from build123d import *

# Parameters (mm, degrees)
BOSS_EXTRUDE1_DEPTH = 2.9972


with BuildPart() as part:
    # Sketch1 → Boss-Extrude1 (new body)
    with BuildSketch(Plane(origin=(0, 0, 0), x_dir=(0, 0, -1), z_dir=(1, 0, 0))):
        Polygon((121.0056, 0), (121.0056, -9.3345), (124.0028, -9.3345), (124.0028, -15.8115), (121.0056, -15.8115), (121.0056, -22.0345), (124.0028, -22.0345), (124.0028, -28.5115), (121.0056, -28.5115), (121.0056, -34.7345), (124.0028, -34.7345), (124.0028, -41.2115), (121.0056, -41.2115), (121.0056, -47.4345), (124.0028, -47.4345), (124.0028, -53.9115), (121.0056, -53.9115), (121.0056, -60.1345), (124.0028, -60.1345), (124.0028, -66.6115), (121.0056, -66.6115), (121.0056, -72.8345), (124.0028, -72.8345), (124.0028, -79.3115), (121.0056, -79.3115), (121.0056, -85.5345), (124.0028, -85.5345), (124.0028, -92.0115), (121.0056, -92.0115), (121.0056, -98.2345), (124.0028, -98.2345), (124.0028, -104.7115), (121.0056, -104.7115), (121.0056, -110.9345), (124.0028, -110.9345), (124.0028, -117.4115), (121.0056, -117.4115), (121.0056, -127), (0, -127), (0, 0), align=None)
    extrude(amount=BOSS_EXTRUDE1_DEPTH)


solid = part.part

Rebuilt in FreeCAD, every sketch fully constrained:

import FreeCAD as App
import Part
import Sketcher

V = App.Vector
Q = App.Units.Quantity

doc = App.newDocument("Part")
body = doc.addObject("PartDesign::Body", "Body")

# Sketch on YZ plane
sketch1 = doc.addObject("Sketcher::SketchObject", "Sketch")
body.addObject(sketch1)
sketch1.AttachmentSupport = (doc.YZ_Plane, [""])
sketch1.MapMode = "FlatFace"
sketch1.addGeometry([
    Part.LineSegment(V(-9.3, -121, 0), V(0, -121, 0)),  # 0
    Part.LineSegment(V(0, -121, 0), V(0, 0, 0)),  # 1
    Part.LineSegment(V(0, 0, 0), V(-127, 0, 0)),  # 2
    Part.LineSegment(V(-127, 0, 0), V(-127, -121, 0)),  # 3
    Part.LineSegment(V(-127, -121, 0), V(-117.4, -121, 0)),  # 4
    Part.LineSegment(V(-117.4, -121, 0), V(-117.4, -124, 0)),  # 5
    Part.LineSegment(V(-117.4, -124, 0), V(-110.9, -124, 0)),  # 6
    Part.LineSegment(V(-110.9, -124, 0), V(-110.9, -121, 0)),  # 7
    Part.LineSegment(V(-110.9, -121, 0), V(-104.7, -121, 0)),  # 8
    Part.LineSegment(V(-104.7, -121, 0), V(-104.7, -124, 0)),  # 9
    Part.LineSegment(V(-104.7, -124, 0), V(-98.2, -124, 0)),  # 10
    Part.LineSegment(V(-98.2, -124, 0), V(-98.2, -121, 0)),  # 11
    Part.LineSegment(V(-98.2, -121, 0), V(-92, -121, 0)),  # 12
    Part.LineSegment(V(-92, -121, 0), V(-92, -124, 0)),  # 13
    Part.LineSegment(V(-92, -124, 0), V(-85.5, -124, 0)),  # 14
    Part.LineSegment(V(-85.5, -124, 0), V(-85.5, -121, 0)),  # 15
    Part.LineSegment(V(-85.5, -121, 0), V(-79.3, -121, 0)),  # 16
    Part.LineSegment(V(-79.3, -121, 0), V(-79.3, -124, 0)),  # 17
    Part.LineSegment(V(-79.3, -124, 0), V(-72.8, -124, 0)),  # 18
    Part.LineSegment(V(-72.8, -124, 0), V(-72.8, -121, 0)),  # 19
    Part.LineSegment(V(-72.8, -121, 0), V(-66.6, -121, 0)),  # 20
    Part.LineSegment(V(-66.6, -121, 0), V(-66.6, -124, 0)),  # 21
    Part.LineSegment(V(-66.6, -124, 0), V(-60.1, -124, 0)),  # 22
    Part.LineSegment(V(-60.1, -124, 0), V(-60.1, -121, 0)),  # 23
    Part.LineSegment(V(-60.1, -121, 0), V(-53.9, -121, 0)),  # 24
    Part.LineSegment(V(-53.9, -121, 0), V(-53.9, -124, 0)),  # 25
    Part.LineSegment(V(-53.9, -124, 0), V(-47.4, -124, 0)),  # 26
    Part.LineSegment(V(-47.4, -124, 0), V(-47.4, -121, 0)),  # 27
    Part.LineSegment(V(-47.4, -121, 0), V(-41.2, -121, 0)),  # 28
    Part.LineSegment(V(-41.2, -121, 0), V(-41.2, -124, 0)),  # 29
    Part.LineSegment(V(-41.2, -124, 0), V(-34.7, -124, 0)),  # 30
    Part.LineSegment(V(-34.7, -124, 0), V(-34.7, -121, 0)),  # 31
    Part.LineSegment(V(-34.7, -121, 0), V(-28.5, -121, 0)),  # 32
    Part.LineSegment(V(-28.5, -121, 0), V(-28.5, -124, 0)),  # 33
    Part.LineSegment(V(-28.5, -124, 0), V(-22, -124, 0)),  # 34
    Part.LineSegment(V(-22, -124, 0), V(-22, -121, 0)),  # 35
    Part.LineSegment(V(-22, -121, 0), V(-15.8, -121, 0)),  # 36
    Part.LineSegment(V(-15.8, -121, 0), V(-15.8, -124, 0)),  # 37
    Part.LineSegment(V(-15.8, -124, 0), V(-9.3, -124, 0)),  # 38
    Part.LineSegment(V(-9.3, -124, 0), V(-9.3, -121, 0)),  # 39
], False)
sketch1.addConstraint([
    Sketcher.Constraint("Coincident", 0, 2, 1, 1),
    Sketcher.Constraint("Coincident", 1, 2, 2, 1),
    Sketcher.Constraint("Coincident", 2, 2, 3, 1),
    Sketcher.Constraint("Coincident", 3, 2, 4, 1),
    Sketcher.Constraint("Coincident", 4, 2, 5, 1),
    Sketcher.Constraint("Coincident", 5, 2, 6, 1),
    Sketcher.Constraint("Coincident", 6, 2, 7, 1),
    Sketcher.Constraint("Coincident", 7, 2, 8, 1),
    Sketcher.Constraint("Coincident", 8, 2, 9, 1),
    Sketcher.Constraint("Coincident", 9, 2, 10, 1),
    Sketcher.Constraint("Coincident", 10, 2, 11, 1),
    Sketcher.Constraint("Coincident", 11, 2, 12, 1),
    Sketcher.Constraint("Coincident", 12, 2, 13, 1),
    Sketcher.Constraint("Coincident", 13, 2, 14, 1),
    Sketcher.Constraint("Coincident", 14, 2, 15, 1),
    Sketcher.Constraint("Coincident", 15, 2, 16, 1),
    Sketcher.Constraint("Coincident", 16, 2, 17, 1),
    Sketcher.Constraint("Coincident", 17, 2, 18, 1),
    Sketcher.Constraint("Coincident", 18, 2, 19, 1),
    Sketcher.Constraint("Coincident", 19, 2, 20, 1),
    Sketcher.Constraint("Coincident", 20, 2, 21, 1),
    Sketcher.Constraint("Coincident", 21, 2, 22, 1),
    Sketcher.Constraint("Coincident", 22, 2, 23, 1),
    Sketcher.Constraint("Coincident", 23, 2, 24, 1),
    Sketcher.Constraint("Coincident", 24, 2, 25, 1),
    Sketcher.Constraint("Coincident", 25, 2, 26, 1),
    Sketcher.Constraint("Coincident", 26, 2, 27, 1),
    Sketcher.Constraint("Coincident", 27, 2, 28, 1),
    Sketcher.Constraint("Coincident", 28, 2, 29, 1),
    Sketcher.Constraint("Coincident", 29, 2, 30, 1),
    Sketcher.Constraint("Coincident", 30, 2, 31, 1),
    Sketcher.Constraint("Coincident", 31, 2, 32, 1),
    Sketcher.Constraint("Coincident", 32, 2, 33, 1),
    Sketcher.Constraint("Coincident", 33, 2, 34, 1),
    Sketcher.Constraint("Coincident", 34, 2, 35, 1),
    Sketcher.Constraint("Coincident", 35, 2, 36, 1),
    Sketcher.Constraint("Coincident", 36, 2, 37, 1),
    Sketcher.Constraint("Coincident", 37, 2, 38, 1),
    Sketcher.Constraint("Coincident", 38, 2, 39, 1),
    Sketcher.Constraint("Coincident", 39, 2, 0, 1),
    Sketcher.Constraint("Horizontal", 0),
    Sketcher.Constraint("Vertical", 1),
    Sketcher.Constraint("Horizontal", 2),
    Sketcher.Constraint("Vertical", 3),
    Sketcher.Constraint("Horizontal", 4),
    Sketcher.Constraint("Vertical", 5),
    Sketcher.Constraint("Horizontal", 6),
    Sketcher.Constraint("Vertical", 7),
    Sketcher.Constraint("Horizontal", 8),
    Sketcher.Constraint("Vertical", 9),
    Sketcher.Constraint("Horizontal", 10),
    Sketcher.Constraint("Vertical", 11),
    Sketcher.Constraint("Horizontal", 12),
    Sketcher.Constraint("Vertical", 13),
    Sketcher.Constraint("Horizontal", 14),
    Sketcher.Constraint("Vertical", 15),
    Sketcher.Constraint("Horizontal", 16),
    Sketcher.Constraint("Vertical", 17),
    Sketcher.Constraint("Horizontal", 18),
    Sketcher.Constraint("Vertical", 19),
    Sketcher.Constraint("Horizontal", 20),
    Sketcher.Constraint("Vertical", 21),
    Sketcher.Constraint("Horizontal", 22),
    Sketcher.Constraint("Vertical", 23),
    Sketcher.Constraint("Horizontal", 24),
    Sketcher.Constraint("Vertical", 25),
    Sketcher.Constraint("Horizontal", 26),
    Sketcher.Constraint("Vertical", 27),
    Sketcher.Constraint("Horizontal", 28),
    Sketcher.Constraint("Vertical", 29),
    Sketcher.Constraint("Horizontal", 30),
    Sketcher.Constraint("Vertical", 31),
    Sketcher.Constraint("Horizontal", 32),
    Sketcher.Constraint("Vertical", 33),
    Sketcher.Constraint("Horizontal", 34),
    Sketcher.Constraint("Vertical", 35),
    Sketcher.Constraint("Horizontal", 36),
    Sketcher.Constraint("Vertical", 37),
    Sketcher.Constraint("Horizontal", 38),
    Sketcher.Constraint("Vertical", 39),
    Sketcher.Constraint("Coincident", 1, 2, -1, 1),
    Sketcher.Constraint("Horizontal", 0, 2, 3, 2),
    Sketcher.Constraint("Horizontal", 4, 2, 7, 2),
    Sketcher.Constraint("Horizontal", 6, 2, 9, 2),
    Sketcher.Constraint("Horizontal", 8, 2, 11, 2),
    Sketcher.Constraint("Horizontal", 10, 2, 13, 2),
    Sketcher.Constraint("Horizontal", 12, 2, 15, 2),
    Sketcher.Constraint("Horizontal", 14, 2, 17, 2),
    Sketcher.Constraint("Horizontal", 16, 2, 19, 2),
    Sketcher.Constraint("Horizontal", 18, 2, 21, 2),
    Sketcher.Constraint("Horizontal", 20, 2, 23, 2),
    Sketcher.Constraint("Horizontal", 22, 2, 25, 2),
    Sketcher.Constraint("Horizontal", 24, 2, 27, 2),
    Sketcher.Constraint("Horizontal", 26, 2, 29, 2),
    Sketcher.Constraint("Horizontal", 28, 2, 31, 2),
    Sketcher.Constraint("Horizontal", 30, 2, 33, 2),
    Sketcher.Constraint("Horizontal", 32, 2, 35, 2),
    Sketcher.Constraint("Horizontal", 34, 2, 37, 2),
    Sketcher.Constraint("Equal", 6, 10),
    Sketcher.Constraint("Equal", 8, 12),
    Sketcher.Constraint("Equal", 10, 14),
    Sketcher.Constraint("Equal", 12, 16),
    Sketcher.Constraint("Equal", 14, 18),
    Sketcher.Constraint("Equal", 16, 20),
    Sketcher.Constraint("Equal", 18, 22),
    Sketcher.Constraint("Equal", 20, 24),
    Sketcher.Constraint("Equal", 22, 26),
    Sketcher.Constraint("Equal", 24, 28),
    Sketcher.Constraint("Equal", 26, 30),
    Sketcher.Constraint("Equal", 28, 32),
    Sketcher.Constraint("Equal", 30, 34),
    Sketcher.Constraint("Equal", 32, 36),
    Sketcher.Constraint("Equal", 34, 38),
    Sketcher.Constraint("DistanceX", 2, 2, 2, 1, Q("5 in")),
    Sketcher.Constraint("DistanceX", 4, 2, 8, 2, Q("0.5 in")),
    Sketcher.Constraint("DistanceX", 6, 1, 6, 2, Q("0.255 in")),
    Sketcher.Constraint("DistanceY", 1, 1, 1, 2, Q("4.764 in")),
    Sketcher.Constraint("DistanceY", 5, 2, 5, 1, Q("0.118 in")),
    Sketcher.Constraint("DistanceX", 0, 1, 0, 2, Q("0.3675 in")),
])
pad1 = doc.addObject("PartDesign::Pad", "Pad")
body.addObject(pad1)
pad1.Profile = sketch1
pad1.Length = Q("0.118 in")

doc.recompute()
